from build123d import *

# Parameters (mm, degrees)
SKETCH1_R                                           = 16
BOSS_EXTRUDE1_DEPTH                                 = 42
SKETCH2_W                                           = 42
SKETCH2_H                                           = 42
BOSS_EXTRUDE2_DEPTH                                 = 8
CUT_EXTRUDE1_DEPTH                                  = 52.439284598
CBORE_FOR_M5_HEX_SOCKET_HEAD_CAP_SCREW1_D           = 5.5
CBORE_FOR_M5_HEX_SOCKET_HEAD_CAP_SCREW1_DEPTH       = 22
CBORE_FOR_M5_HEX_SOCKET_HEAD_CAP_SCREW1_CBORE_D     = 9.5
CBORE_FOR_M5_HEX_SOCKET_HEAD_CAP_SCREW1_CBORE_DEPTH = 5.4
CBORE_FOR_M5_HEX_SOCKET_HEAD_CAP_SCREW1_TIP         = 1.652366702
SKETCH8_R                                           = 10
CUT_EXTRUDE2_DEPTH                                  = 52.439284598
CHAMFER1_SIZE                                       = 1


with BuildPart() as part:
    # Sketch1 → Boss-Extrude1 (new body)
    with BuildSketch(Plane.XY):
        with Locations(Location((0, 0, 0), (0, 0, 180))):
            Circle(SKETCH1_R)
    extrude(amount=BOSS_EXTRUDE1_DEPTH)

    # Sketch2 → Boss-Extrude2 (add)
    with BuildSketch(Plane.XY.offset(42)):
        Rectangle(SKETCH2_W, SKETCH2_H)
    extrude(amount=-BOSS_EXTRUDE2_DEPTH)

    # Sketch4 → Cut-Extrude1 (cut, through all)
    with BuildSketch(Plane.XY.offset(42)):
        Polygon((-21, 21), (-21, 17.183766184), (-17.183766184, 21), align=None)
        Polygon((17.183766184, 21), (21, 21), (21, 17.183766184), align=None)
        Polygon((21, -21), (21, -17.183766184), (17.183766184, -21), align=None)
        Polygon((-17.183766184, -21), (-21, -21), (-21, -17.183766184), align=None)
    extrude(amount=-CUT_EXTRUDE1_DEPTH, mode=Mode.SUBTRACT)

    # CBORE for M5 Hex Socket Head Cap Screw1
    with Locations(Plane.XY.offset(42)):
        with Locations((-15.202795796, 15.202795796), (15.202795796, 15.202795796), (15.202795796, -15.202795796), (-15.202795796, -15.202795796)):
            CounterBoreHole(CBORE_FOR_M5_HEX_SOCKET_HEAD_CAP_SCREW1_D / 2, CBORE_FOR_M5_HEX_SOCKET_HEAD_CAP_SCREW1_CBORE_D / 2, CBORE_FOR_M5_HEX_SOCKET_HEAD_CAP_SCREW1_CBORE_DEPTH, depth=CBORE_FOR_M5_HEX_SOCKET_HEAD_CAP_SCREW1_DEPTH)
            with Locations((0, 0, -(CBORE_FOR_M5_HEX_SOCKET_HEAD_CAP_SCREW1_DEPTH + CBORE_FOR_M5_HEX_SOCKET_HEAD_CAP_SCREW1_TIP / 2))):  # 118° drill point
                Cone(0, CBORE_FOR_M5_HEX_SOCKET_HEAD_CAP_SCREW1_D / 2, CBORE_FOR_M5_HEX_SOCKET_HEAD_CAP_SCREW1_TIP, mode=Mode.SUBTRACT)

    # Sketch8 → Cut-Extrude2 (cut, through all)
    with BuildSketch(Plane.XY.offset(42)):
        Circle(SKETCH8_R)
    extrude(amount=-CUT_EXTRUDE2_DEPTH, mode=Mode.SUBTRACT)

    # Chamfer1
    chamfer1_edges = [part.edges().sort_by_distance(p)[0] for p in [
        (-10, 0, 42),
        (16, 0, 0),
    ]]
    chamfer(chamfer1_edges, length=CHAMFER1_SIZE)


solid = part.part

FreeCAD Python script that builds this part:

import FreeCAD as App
import Part
import Sketcher
from FreeCAD import Vector


def edges_at(feature, points):
    """Names of the edges that pass closest to the given points."""
    edges = feature.Shape.Edges
    near = lambda p: min(range(len(edges)), key=lambda i: edges[i].distToShape(Part.Vertex(*p))[0])
    return sorted({f"Edge{near(p) + 1}" for p in points})

doc = App.newDocument("Part")
body = doc.addObject("PartDesign::Body", "Body")

# Sketch on XY plane
sketch1 = body.newObject("Sketcher::SketchObject", "Sketch")
sketch1.AttachmentSupport = (doc.getObject("XY_Plane"), [""])
sketch1.MapMode = "FlatFace"
sketch1.addGeometry(Part.Circle(Vector(0, 0, 0), Vector(0, 0, 1), 16), False)
sketch1.addConstraint([
    Sketcher.Constraint("Coincident", 0, 3, -1, 1),
    Sketcher.Constraint("Diameter", 0, 32.0),
])
pad1 = body.newObject("PartDesign::Pad", "Pad")
pad1.Profile = sketch1
pad1.Length = 42

# Sketch on XY plane
sketch2 = body.newObject("Sketcher::SketchObject", "Sketch001")
sketch2.AttachmentSupport = (doc.getObject("XY_Plane"), [""])
sketch2.MapMode = "FlatFace"
sketch2.AttachmentOffset = App.Placement(Vector(0, 0, 42), App.Rotation())
sketch2.addGeometry([
    Part.LineSegment(Vector(-21, 21, 0), Vector(-21, -21, 0)),
    Part.LineSegment(Vector(-21, -21, 0), Vector(21, -21, 0)),
    Part.LineSegment(Vector(21, -21, 0), Vector(21, 21, 0)),
    Part.LineSegment(Vector(21, 21, 0), Vector(-21, 21, 0)),
], False)
sketch2.addConstraint([
    Sketcher.Constraint("Coincident", 0, 2, 1, 1),
    Sketcher.Constraint("Coincident", 1, 2, 2, 1),
    Sketcher.Constraint("Coincident", 2, 2, 3, 1),
    Sketcher.Constraint("Coincident", 3, 2, 0, 1),
    Sketcher.Constraint("Vertical", 0),
    Sketcher.Constraint("Horizontal", 1),
    Sketcher.Constraint("Vertical", 2),
    Sketcher.Constraint("Horizontal", 3),
    Sketcher.Constraint("Symmetric", 0, 2, 2, 2, -1, 1),
    Sketcher.Constraint("Equal", 3, 0),
    Sketcher.Constraint("DistanceX", 1, 1, 1, 2, 42.0),
])
pad2 = body.newObject("PartDesign::Pad", "Pad001")
pad2.Profile = sketch2
pad2.Length = 8
pad2.Reversed = True

# Sketch on XY plane
sketch3 = body.newObject("Sketcher::SketchObject", "Sketch002")
sketch3.AttachmentSupport = (doc.getObject("XY_Plane"), [""])
sketch3.MapMode = "FlatFace"
sketch3.AttachmentOffset = App.Placement(Vector(0, 0, 42), App.Rotation())
sketch3.addGeometry([
    Part.LineSegment(Vector(-21, 21, 0), Vector(-21, 17.2, 0)),  # 0
    Part.LineSegment(Vector(-21, 17.2, 0), Vector(-17.2, 21, 0)),  # 1
    Part.LineSegment(Vector(-17.2, 21, 0), Vector(-21, 21, 0)),  # 2
    Part.LineSegment(Vector(21, 21, 0), Vector(17.2, 21, 0)),  # 3
    Part.LineSegment(Vector(17.2, 21, 0), Vector(21, 17.2, 0)),  # 4
    Part.LineSegment(Vector(21, 17.2, 0), Vector(21, 21, 0)),  # 5
    Part.LineSegment(Vector(21, -21, 0), Vector(21, -17.2, 0)),  # 6
    Part.LineSegment(Vector(21, -17.2, 0), Vector(17.2, -21, 0)),  # 7
    Part.LineSegment(Vector(17.2, -21, 0), Vector(21, -21, 0)),  # 8
    Part.LineSegment(Vector(-21, -21, 0), Vector(-17.2, -21, 0)),  # 9
    Part.LineSegment(Vector(-17.2, -21, 0), Vector(-21, -17.2, 0)),  # 10
    Part.LineSegment(Vector(-21, -17.2, 0), Vector(-21, -21, 0)),  # 11
], False)
sketch3.addConstraint([
    Sketcher.Constraint("Coincident", 0, 2, 1, 1),
    Sketcher.Constraint("Coincident", 1, 2, 2, 1),
    Sketcher.Constraint("Coincident", 2, 2, 0, 1),
    Sketcher.Constraint("Coincident", 3, 2, 4, 1),
    Sketcher.Constraint("Coincident", 4, 2, 5, 1),
    Sketcher.Constraint("Coincident", 5, 2, 3, 1),
    Sketcher.Constraint("Coincident", 6, 2, 7, 1),
    Sketcher.Constraint("Coincident", 7, 2, 8, 1),
    Sketcher.Constraint("Coincident", 8, 2, 6, 1),
    Sketcher.Constraint("Coincident", 9, 2, 10, 1),
    Sketcher.Constraint("Coincident", 10, 2, 11, 1),
    Sketcher.Constraint("Coincident", 11, 2, 9, 1),
    Sketcher.Constraint("Vertical", 0),
    Sketcher.Constraint("Horizontal", 2),
    Sketcher.Constraint("Horizontal", 3),
    Sketcher.Constraint("Vertical", 5),
    Sketcher.Constraint("Vertical", 6),
    Sketcher.Constraint("Horizontal", 8),
    Sketcher.Constraint("Horizontal", 9),
    Sketcher.Constraint("Vertical", 11),
    Sketcher.Constraint("Symmetric", 0, 2, 6, 2, -1, 1),
    Sketcher.Constraint("Symmetric", 1, 2, 7, 2, -1, 1),
    Sketcher.Constraint("Symmetric", 3, 2, 9, 2, -1, 1),
    Sketcher.Constraint("Symmetric", 4, 2, 10, 2, -1, 1),
    Sketcher.Constraint("Symmetric", 1, 2, 3, 2, -2),
    Sketcher.Constraint("Symmetric", 0, 2, 4, 2, -2),
    Sketcher.Constraint("Perpendicular", 1, 4),
    Sketcher.Constraint("DistanceX", 0, 2, -1, 1, 21.0),
    Sketcher.Constraint("DistanceY", -1, 1, 1, 2, 21.0),
    Sketcher.Constraint("Distance", 1, 5.39697),
])
pocket1 = body.newObject("PartDesign::Pocket", "Pocket")
pocket1.Profile = sketch3
pocket1.Type = "ThroughAll"

# Sketch on XY plane
sketch4 = body.newObject("Sketcher::SketchObject", "Sketch003")
sketch4.AttachmentSupport = (doc.getObject("XY_Plane"), [""])
sketch4.MapMode = "FlatFace"
sketch4.AttachmentOffset = App.Placement(Vector(0, 0, 42), App.Rotation())
sketch4.addGeometry([
    Part.Circle(Vector(-15.2, 15.2, 0), Vector(0, 0, 1), 2.8),
    Part.Circle(Vector(15.2, 15.2, 0), Vector(0, 0, 1), 2.8),
    Part.Circle(Vector(15.2, -15.2, 0), Vector(0, 0, 1), 2.8),
    Part.Circle(Vector(-15.2, -15.2, 0), Vector(0, 0, 1), 2.8),
], False)
sketch4.addConstraint([
    Sketcher.Constraint("Equal", 0, 1),
    Sketcher.Constraint("Equal", 1, 2),
    Sketcher.Constraint("Equal", 2, 3),
    Sketcher.Constraint("Symmetric", 0, 3, 2, 3, -1, 1),
    Sketcher.Constraint("Symmetric", 1, 3, 3, 3, -1, 1),
    Sketcher.Constraint("Symmetric", 0, 3, 1, 3, -2),
    Sketcher.Constraint("Diameter", 0, 5.5),
    Sketcher.Constraint("DistanceX", 0, 3, 1, 3, 30.405592),
    Sketcher.Constraint("DistanceY", 2, 3, 1, 3, 30.405592),
])
doc.recompute()
hole = body.newObject("PartDesign::Hole", "Hole")
hole.Profile = sketch4
hole.ThreadType = "None"
hole.Diameter = 5.5
hole.DepthType = "Dimension"
hole.Depth = 22
hole.DrillPoint = "Angled"
hole.DrillPointAngle = 118
hole.HoleCutType = "Counterbore"
hole.HoleCutDiameter = 9.5
hole.HoleCutDepth = 5.4

# Sketch on XY plane
sketch5 = body.newObject("Sketcher::SketchObject", "Sketch004")
sketch5.AttachmentSupport = (doc.getObject("XY_Plane"), [""])
sketch5.MapMode = "FlatFace"
sketch5.AttachmentOffset = App.Placement(Vector(0, 0, 42), App.Rotation())
sketch5.addGeometry(Part.Circle(Vector(0, 0, 0), Vector(0, 0, 1), 10), False)
sketch5.addConstraint([
    Sketcher.Constraint("Coincident", 0, 3, -1, 1),
    Sketcher.Constraint("Diameter", 0, 20.0),
])
pocket2 = body.newObject("PartDesign::Pocket", "Pocket001")
pocket2.Profile = sketch5
pocket2.Type = "ThroughAll"
doc.recompute()

chamfer = body.newObject("PartDesign::Chamfer", "Chamfer")
chamfer.Base = (pocket2, edges_at(pocket2, [(-10, 0, 42), (16, 0, 0)]))
chamfer.Size = 1

doc.recompute()
